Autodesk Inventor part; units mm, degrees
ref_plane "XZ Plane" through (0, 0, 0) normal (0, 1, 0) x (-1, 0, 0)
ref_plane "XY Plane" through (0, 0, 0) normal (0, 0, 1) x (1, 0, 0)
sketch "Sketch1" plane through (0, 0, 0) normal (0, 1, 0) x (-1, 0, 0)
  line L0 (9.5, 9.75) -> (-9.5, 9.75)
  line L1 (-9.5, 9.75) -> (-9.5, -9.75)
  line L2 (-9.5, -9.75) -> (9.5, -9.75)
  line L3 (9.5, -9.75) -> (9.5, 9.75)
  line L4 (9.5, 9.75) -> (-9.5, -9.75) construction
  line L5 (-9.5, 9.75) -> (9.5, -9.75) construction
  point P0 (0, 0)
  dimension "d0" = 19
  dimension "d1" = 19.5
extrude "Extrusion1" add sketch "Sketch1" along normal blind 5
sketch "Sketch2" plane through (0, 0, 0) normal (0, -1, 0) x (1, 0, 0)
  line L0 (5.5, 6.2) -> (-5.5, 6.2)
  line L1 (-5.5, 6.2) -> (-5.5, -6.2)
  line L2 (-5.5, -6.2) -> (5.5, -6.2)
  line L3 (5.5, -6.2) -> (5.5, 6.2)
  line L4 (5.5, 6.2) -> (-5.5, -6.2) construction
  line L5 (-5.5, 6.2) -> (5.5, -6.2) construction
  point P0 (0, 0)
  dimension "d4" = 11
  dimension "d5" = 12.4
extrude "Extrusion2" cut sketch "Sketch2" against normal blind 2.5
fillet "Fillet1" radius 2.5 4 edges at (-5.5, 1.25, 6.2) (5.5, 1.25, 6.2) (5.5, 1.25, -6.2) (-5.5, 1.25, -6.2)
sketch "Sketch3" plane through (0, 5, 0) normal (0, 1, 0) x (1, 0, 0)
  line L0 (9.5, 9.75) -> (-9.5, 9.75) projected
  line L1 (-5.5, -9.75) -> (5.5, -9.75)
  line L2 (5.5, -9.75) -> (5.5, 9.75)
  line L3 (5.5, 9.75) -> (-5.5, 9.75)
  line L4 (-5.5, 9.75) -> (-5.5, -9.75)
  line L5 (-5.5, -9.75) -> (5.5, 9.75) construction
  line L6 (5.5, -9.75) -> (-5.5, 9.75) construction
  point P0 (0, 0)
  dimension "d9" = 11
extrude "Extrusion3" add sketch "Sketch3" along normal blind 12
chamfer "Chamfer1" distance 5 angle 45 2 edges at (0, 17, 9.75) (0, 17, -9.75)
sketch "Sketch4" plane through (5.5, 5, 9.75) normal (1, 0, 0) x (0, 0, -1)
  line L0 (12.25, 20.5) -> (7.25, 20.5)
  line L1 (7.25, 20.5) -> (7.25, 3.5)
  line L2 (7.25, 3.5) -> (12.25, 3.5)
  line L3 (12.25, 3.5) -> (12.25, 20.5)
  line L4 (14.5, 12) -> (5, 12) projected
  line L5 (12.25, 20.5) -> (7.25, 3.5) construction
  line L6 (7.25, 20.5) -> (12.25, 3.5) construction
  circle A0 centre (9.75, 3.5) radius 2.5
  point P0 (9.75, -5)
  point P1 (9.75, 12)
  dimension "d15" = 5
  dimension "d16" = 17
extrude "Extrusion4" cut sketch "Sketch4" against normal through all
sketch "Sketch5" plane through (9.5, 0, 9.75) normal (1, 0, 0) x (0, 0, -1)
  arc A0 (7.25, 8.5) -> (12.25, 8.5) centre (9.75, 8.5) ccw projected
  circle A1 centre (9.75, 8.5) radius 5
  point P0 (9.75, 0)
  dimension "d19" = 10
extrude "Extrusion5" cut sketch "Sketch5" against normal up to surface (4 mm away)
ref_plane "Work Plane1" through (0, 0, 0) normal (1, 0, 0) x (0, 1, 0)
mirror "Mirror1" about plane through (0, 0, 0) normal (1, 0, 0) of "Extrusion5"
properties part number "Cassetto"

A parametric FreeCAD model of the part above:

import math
import FreeCAD as App
import Part
import Sketcher

V = App.Vector


def edges_at(feature, points):
    """Names of the edges that pass closest to the given points."""
    edges = feature.Shape.Edges
    near = lambda p: min(range(len(edges)), key=lambda i: edges[i].distToShape(Part.Vertex(*p))[0])
    return sorted({f"Edge{near(p) + 1}" for p in points})


def add_polygon(sketch, points):
    """Adds a closed chain of lines whose ends are joined by coincident constraints."""
    first, n = sketch.GeometryCount, len(points)
    for a, b in zip(points, points[1:] + points[:1]):
        sketch.addGeometry(Part.LineSegment(App.Vector(*a, 0), App.Vector(*b, 0)), False)
    for i in range(n):
        sketch.addConstraint(Sketcher.Constraint("Coincident", first + i, 2, first + (i + 1) % n, 1))

doc = App.newDocument("Part")
body = doc.addObject("PartDesign::Body", "Body")

sketch1 = body.newObject("Sketcher::SketchObject", "Sketch")
sketch1.AttachmentSupport = (doc.getObject("XZ_Plane"), [""])
sketch1.MapMode = "FlatFace"
add_polygon(sketch1, [(-10, -10), (-10, 10), (10, 10), (10, -10)])
sketch1.addConstraint([
    Sketcher.Constraint("Vertical", 0),
    Sketcher.Constraint("Horizontal", 1),
    Sketcher.Constraint("Vertical", 2),
    Sketcher.Constraint("Horizontal", 3),
    Sketcher.Constraint("Symmetric", 0, 2, 2, 2, -1, 1),
    Sketcher.Constraint("DistanceX", 1, 1, 1, 2, 19.0),
    Sketcher.Constraint("DistanceY", 0, 1, 0, 2, 19.5),
])
pad1 = body.newObject("PartDesign::Pad", "Pad")
pad1.Profile = sketch1
pad1.Length = 5
pad1.Reversed = True

sketch2 = body.newObject("Sketcher::SketchObject", "Sketch001")
sketch2.AttachmentSupport = (doc.getObject("XZ_Plane"), [""])
sketch2.MapMode = "FlatFace"
add_polygon(sketch2, [(6, -6), (6, 6), (-6, 6), (-6, -6)])
sketch2.addConstraint([
    Sketcher.Constraint("Vertical", 0),
    Sketcher.Constraint("Horizontal", 1),
    Sketcher.Constraint("Vertical", 2),
    Sketcher.Constraint("Horizontal", 3),
    Sketcher.Constraint("Symmetric", 0, 2, 2, 2, -1, 1),
    Sketcher.Constraint("DistanceX", 1, 2, 1, 1, 11.0),
    Sketcher.Constraint("DistanceY", 0, 1, 0, 2, 12.4),
])
pocket1 = body.newObject("PartDesign::Pocket", "Pocket")
pocket1.Profile = sketch2
pocket1.Length = 2.5
doc.recompute()

fillet = body.newObject("PartDesign::Fillet", "Fillet")
fillet.Base = (pocket1, edges_at(pocket1, [
    (-5.5, 1.25, 6.2),
    (5.5, 1.25, 6.2),
    (5.5, 1.25, -6.2),
    (-5.5, 1.25, -6.2),
]))
fillet.Radius = 2.5

sketch3 = body.newObject("Sketcher::SketchObject", "Sketch002")
sketch3.AttachmentSupport = (doc.getObject("XZ_Plane"), [""])
sketch3.MapMode = "FlatFace"
sketch3.AttachmentOffset = App.Placement(V(0, 0, -5), App.Rotation())
add_polygon(sketch3, [(6, 10), (6, -10), (-6, -10), (-6, 10)])
sketch3.addConstraint([
    Sketcher.Constraint("Vertical", 0),
    Sketcher.Constraint("Horizontal", 1),
    Sketcher.Constraint("Vertical", 2),
    Sketcher.Constraint("Horizontal", 3),
    Sketcher.Constraint("Symmetric", 0, 2, 2, 2, -1, 1),
    Sketcher.Constraint("DistanceX", 1, 2, 1, 1, 11.0),
    Sketcher.Constraint("DistanceY", 0, 2, 0, 1, 19.5),
])
pad2 = body.newObject("PartDesign::Pad", "Pad001")
pad2.Profile = sketch3
pad2.Length = 12
pad2.Reversed = True
doc.recompute()

chamfer = body.newObject("PartDesign::Chamfer", "Chamfer")
chamfer.Base = (pad2, edges_at(pad2, [(0, 17, 9.75), (0, 17, -9.75)]))
chamfer.Size = 5

sketch4 = body.newObject("Sketcher::SketchObject", "Sketch003")
sketch4.AttachmentSupport = (doc.getObject("YZ_Plane"), [""])
sketch4.MapMode = "FlatFace"
sketch4.AttachmentOffset = App.Placement(V(0, 0, 5.5), App.Rotation())
sketch4.addGeometry([
    Part.LineSegment(V(25.5, -2.5, 0), V(25.5, 2.5, 0)),
    Part.LineSegment(V(25.5, 2.5, 0), V(8.5, 2.5, 0)),
    Part.ArcOfCircle(Part.Circle(V(8.5, 0, 0), V(0, 0, 1), 2.5), math.radians(90), math.radians(270)),
    Part.LineSegment(V(8.5, -2.5, 0), V(25.5, -2.5, 0)),
], False)
sketch4.addConstraint([
    Sketcher.Constraint("Coincident", 0, 2, 1, 1),
    Sketcher.Constraint("Tangent", 1, 2, 2, 1),
    Sketcher.Constraint("Tangent", 2, 2, 3, 1),
    Sketcher.Constraint("Coincident", 3, 2, 0, 1),
    Sketcher.Constraint("Vertical", 0),
    Sketcher.Constraint("Horizontal", 1),
    Sketcher.Constraint("Horizontal", 3),
    Sketcher.Constraint("PointOnObject", 2, 3, -1),
    Sketcher.Constraint("Radius", 2, 2.5),
    Sketcher.Constraint("DistanceX", 1, 2, 1, 1, 17.0),
    Sketcher.Constraint("DistanceX", -1, 1, 2, 3, 8.5),
])
pocket2 = body.newObject("PartDesign::Pocket", "Pocket001")
pocket2.Profile = sketch4
pocket2.Type = "ThroughAll"

sketch5 = body.newObject("Sketcher::SketchObject", "Sketch004")
sketch5.AttachmentSupport = (doc.getObject("YZ_Plane"), [""])
sketch5.MapMode = "FlatFace"
sketch5.AttachmentOffset = App.Placement(V(0, 0, 9.5), App.Rotation())
sketch5.addGeometry(Part.Circle(V(8, 0, 0), V(0, 0, 1), 5), False)
sketch5.addConstraint([
    Sketcher.Constraint("PointOnObject", 0, 3, -1),
    Sketcher.Constraint("Diameter", 0, 10.0),
    Sketcher.Constraint("DistanceX", -1, 1, 0, 3, 8.5),
])
pocket3 = body.newObject("PartDesign::Pocket", "Pocket002")
pocket3.Profile = sketch5
pocket3.Length = 4
doc.recompute()

mirrored = body.newObject("PartDesign::Mirrored", "Mirrored")
mirrored.Originals = [pocket3]
mirrored.MirrorPlane = (doc.getObject("YZ_Plane"), [""])
body.Tip = mirrored

doc.recompute()
